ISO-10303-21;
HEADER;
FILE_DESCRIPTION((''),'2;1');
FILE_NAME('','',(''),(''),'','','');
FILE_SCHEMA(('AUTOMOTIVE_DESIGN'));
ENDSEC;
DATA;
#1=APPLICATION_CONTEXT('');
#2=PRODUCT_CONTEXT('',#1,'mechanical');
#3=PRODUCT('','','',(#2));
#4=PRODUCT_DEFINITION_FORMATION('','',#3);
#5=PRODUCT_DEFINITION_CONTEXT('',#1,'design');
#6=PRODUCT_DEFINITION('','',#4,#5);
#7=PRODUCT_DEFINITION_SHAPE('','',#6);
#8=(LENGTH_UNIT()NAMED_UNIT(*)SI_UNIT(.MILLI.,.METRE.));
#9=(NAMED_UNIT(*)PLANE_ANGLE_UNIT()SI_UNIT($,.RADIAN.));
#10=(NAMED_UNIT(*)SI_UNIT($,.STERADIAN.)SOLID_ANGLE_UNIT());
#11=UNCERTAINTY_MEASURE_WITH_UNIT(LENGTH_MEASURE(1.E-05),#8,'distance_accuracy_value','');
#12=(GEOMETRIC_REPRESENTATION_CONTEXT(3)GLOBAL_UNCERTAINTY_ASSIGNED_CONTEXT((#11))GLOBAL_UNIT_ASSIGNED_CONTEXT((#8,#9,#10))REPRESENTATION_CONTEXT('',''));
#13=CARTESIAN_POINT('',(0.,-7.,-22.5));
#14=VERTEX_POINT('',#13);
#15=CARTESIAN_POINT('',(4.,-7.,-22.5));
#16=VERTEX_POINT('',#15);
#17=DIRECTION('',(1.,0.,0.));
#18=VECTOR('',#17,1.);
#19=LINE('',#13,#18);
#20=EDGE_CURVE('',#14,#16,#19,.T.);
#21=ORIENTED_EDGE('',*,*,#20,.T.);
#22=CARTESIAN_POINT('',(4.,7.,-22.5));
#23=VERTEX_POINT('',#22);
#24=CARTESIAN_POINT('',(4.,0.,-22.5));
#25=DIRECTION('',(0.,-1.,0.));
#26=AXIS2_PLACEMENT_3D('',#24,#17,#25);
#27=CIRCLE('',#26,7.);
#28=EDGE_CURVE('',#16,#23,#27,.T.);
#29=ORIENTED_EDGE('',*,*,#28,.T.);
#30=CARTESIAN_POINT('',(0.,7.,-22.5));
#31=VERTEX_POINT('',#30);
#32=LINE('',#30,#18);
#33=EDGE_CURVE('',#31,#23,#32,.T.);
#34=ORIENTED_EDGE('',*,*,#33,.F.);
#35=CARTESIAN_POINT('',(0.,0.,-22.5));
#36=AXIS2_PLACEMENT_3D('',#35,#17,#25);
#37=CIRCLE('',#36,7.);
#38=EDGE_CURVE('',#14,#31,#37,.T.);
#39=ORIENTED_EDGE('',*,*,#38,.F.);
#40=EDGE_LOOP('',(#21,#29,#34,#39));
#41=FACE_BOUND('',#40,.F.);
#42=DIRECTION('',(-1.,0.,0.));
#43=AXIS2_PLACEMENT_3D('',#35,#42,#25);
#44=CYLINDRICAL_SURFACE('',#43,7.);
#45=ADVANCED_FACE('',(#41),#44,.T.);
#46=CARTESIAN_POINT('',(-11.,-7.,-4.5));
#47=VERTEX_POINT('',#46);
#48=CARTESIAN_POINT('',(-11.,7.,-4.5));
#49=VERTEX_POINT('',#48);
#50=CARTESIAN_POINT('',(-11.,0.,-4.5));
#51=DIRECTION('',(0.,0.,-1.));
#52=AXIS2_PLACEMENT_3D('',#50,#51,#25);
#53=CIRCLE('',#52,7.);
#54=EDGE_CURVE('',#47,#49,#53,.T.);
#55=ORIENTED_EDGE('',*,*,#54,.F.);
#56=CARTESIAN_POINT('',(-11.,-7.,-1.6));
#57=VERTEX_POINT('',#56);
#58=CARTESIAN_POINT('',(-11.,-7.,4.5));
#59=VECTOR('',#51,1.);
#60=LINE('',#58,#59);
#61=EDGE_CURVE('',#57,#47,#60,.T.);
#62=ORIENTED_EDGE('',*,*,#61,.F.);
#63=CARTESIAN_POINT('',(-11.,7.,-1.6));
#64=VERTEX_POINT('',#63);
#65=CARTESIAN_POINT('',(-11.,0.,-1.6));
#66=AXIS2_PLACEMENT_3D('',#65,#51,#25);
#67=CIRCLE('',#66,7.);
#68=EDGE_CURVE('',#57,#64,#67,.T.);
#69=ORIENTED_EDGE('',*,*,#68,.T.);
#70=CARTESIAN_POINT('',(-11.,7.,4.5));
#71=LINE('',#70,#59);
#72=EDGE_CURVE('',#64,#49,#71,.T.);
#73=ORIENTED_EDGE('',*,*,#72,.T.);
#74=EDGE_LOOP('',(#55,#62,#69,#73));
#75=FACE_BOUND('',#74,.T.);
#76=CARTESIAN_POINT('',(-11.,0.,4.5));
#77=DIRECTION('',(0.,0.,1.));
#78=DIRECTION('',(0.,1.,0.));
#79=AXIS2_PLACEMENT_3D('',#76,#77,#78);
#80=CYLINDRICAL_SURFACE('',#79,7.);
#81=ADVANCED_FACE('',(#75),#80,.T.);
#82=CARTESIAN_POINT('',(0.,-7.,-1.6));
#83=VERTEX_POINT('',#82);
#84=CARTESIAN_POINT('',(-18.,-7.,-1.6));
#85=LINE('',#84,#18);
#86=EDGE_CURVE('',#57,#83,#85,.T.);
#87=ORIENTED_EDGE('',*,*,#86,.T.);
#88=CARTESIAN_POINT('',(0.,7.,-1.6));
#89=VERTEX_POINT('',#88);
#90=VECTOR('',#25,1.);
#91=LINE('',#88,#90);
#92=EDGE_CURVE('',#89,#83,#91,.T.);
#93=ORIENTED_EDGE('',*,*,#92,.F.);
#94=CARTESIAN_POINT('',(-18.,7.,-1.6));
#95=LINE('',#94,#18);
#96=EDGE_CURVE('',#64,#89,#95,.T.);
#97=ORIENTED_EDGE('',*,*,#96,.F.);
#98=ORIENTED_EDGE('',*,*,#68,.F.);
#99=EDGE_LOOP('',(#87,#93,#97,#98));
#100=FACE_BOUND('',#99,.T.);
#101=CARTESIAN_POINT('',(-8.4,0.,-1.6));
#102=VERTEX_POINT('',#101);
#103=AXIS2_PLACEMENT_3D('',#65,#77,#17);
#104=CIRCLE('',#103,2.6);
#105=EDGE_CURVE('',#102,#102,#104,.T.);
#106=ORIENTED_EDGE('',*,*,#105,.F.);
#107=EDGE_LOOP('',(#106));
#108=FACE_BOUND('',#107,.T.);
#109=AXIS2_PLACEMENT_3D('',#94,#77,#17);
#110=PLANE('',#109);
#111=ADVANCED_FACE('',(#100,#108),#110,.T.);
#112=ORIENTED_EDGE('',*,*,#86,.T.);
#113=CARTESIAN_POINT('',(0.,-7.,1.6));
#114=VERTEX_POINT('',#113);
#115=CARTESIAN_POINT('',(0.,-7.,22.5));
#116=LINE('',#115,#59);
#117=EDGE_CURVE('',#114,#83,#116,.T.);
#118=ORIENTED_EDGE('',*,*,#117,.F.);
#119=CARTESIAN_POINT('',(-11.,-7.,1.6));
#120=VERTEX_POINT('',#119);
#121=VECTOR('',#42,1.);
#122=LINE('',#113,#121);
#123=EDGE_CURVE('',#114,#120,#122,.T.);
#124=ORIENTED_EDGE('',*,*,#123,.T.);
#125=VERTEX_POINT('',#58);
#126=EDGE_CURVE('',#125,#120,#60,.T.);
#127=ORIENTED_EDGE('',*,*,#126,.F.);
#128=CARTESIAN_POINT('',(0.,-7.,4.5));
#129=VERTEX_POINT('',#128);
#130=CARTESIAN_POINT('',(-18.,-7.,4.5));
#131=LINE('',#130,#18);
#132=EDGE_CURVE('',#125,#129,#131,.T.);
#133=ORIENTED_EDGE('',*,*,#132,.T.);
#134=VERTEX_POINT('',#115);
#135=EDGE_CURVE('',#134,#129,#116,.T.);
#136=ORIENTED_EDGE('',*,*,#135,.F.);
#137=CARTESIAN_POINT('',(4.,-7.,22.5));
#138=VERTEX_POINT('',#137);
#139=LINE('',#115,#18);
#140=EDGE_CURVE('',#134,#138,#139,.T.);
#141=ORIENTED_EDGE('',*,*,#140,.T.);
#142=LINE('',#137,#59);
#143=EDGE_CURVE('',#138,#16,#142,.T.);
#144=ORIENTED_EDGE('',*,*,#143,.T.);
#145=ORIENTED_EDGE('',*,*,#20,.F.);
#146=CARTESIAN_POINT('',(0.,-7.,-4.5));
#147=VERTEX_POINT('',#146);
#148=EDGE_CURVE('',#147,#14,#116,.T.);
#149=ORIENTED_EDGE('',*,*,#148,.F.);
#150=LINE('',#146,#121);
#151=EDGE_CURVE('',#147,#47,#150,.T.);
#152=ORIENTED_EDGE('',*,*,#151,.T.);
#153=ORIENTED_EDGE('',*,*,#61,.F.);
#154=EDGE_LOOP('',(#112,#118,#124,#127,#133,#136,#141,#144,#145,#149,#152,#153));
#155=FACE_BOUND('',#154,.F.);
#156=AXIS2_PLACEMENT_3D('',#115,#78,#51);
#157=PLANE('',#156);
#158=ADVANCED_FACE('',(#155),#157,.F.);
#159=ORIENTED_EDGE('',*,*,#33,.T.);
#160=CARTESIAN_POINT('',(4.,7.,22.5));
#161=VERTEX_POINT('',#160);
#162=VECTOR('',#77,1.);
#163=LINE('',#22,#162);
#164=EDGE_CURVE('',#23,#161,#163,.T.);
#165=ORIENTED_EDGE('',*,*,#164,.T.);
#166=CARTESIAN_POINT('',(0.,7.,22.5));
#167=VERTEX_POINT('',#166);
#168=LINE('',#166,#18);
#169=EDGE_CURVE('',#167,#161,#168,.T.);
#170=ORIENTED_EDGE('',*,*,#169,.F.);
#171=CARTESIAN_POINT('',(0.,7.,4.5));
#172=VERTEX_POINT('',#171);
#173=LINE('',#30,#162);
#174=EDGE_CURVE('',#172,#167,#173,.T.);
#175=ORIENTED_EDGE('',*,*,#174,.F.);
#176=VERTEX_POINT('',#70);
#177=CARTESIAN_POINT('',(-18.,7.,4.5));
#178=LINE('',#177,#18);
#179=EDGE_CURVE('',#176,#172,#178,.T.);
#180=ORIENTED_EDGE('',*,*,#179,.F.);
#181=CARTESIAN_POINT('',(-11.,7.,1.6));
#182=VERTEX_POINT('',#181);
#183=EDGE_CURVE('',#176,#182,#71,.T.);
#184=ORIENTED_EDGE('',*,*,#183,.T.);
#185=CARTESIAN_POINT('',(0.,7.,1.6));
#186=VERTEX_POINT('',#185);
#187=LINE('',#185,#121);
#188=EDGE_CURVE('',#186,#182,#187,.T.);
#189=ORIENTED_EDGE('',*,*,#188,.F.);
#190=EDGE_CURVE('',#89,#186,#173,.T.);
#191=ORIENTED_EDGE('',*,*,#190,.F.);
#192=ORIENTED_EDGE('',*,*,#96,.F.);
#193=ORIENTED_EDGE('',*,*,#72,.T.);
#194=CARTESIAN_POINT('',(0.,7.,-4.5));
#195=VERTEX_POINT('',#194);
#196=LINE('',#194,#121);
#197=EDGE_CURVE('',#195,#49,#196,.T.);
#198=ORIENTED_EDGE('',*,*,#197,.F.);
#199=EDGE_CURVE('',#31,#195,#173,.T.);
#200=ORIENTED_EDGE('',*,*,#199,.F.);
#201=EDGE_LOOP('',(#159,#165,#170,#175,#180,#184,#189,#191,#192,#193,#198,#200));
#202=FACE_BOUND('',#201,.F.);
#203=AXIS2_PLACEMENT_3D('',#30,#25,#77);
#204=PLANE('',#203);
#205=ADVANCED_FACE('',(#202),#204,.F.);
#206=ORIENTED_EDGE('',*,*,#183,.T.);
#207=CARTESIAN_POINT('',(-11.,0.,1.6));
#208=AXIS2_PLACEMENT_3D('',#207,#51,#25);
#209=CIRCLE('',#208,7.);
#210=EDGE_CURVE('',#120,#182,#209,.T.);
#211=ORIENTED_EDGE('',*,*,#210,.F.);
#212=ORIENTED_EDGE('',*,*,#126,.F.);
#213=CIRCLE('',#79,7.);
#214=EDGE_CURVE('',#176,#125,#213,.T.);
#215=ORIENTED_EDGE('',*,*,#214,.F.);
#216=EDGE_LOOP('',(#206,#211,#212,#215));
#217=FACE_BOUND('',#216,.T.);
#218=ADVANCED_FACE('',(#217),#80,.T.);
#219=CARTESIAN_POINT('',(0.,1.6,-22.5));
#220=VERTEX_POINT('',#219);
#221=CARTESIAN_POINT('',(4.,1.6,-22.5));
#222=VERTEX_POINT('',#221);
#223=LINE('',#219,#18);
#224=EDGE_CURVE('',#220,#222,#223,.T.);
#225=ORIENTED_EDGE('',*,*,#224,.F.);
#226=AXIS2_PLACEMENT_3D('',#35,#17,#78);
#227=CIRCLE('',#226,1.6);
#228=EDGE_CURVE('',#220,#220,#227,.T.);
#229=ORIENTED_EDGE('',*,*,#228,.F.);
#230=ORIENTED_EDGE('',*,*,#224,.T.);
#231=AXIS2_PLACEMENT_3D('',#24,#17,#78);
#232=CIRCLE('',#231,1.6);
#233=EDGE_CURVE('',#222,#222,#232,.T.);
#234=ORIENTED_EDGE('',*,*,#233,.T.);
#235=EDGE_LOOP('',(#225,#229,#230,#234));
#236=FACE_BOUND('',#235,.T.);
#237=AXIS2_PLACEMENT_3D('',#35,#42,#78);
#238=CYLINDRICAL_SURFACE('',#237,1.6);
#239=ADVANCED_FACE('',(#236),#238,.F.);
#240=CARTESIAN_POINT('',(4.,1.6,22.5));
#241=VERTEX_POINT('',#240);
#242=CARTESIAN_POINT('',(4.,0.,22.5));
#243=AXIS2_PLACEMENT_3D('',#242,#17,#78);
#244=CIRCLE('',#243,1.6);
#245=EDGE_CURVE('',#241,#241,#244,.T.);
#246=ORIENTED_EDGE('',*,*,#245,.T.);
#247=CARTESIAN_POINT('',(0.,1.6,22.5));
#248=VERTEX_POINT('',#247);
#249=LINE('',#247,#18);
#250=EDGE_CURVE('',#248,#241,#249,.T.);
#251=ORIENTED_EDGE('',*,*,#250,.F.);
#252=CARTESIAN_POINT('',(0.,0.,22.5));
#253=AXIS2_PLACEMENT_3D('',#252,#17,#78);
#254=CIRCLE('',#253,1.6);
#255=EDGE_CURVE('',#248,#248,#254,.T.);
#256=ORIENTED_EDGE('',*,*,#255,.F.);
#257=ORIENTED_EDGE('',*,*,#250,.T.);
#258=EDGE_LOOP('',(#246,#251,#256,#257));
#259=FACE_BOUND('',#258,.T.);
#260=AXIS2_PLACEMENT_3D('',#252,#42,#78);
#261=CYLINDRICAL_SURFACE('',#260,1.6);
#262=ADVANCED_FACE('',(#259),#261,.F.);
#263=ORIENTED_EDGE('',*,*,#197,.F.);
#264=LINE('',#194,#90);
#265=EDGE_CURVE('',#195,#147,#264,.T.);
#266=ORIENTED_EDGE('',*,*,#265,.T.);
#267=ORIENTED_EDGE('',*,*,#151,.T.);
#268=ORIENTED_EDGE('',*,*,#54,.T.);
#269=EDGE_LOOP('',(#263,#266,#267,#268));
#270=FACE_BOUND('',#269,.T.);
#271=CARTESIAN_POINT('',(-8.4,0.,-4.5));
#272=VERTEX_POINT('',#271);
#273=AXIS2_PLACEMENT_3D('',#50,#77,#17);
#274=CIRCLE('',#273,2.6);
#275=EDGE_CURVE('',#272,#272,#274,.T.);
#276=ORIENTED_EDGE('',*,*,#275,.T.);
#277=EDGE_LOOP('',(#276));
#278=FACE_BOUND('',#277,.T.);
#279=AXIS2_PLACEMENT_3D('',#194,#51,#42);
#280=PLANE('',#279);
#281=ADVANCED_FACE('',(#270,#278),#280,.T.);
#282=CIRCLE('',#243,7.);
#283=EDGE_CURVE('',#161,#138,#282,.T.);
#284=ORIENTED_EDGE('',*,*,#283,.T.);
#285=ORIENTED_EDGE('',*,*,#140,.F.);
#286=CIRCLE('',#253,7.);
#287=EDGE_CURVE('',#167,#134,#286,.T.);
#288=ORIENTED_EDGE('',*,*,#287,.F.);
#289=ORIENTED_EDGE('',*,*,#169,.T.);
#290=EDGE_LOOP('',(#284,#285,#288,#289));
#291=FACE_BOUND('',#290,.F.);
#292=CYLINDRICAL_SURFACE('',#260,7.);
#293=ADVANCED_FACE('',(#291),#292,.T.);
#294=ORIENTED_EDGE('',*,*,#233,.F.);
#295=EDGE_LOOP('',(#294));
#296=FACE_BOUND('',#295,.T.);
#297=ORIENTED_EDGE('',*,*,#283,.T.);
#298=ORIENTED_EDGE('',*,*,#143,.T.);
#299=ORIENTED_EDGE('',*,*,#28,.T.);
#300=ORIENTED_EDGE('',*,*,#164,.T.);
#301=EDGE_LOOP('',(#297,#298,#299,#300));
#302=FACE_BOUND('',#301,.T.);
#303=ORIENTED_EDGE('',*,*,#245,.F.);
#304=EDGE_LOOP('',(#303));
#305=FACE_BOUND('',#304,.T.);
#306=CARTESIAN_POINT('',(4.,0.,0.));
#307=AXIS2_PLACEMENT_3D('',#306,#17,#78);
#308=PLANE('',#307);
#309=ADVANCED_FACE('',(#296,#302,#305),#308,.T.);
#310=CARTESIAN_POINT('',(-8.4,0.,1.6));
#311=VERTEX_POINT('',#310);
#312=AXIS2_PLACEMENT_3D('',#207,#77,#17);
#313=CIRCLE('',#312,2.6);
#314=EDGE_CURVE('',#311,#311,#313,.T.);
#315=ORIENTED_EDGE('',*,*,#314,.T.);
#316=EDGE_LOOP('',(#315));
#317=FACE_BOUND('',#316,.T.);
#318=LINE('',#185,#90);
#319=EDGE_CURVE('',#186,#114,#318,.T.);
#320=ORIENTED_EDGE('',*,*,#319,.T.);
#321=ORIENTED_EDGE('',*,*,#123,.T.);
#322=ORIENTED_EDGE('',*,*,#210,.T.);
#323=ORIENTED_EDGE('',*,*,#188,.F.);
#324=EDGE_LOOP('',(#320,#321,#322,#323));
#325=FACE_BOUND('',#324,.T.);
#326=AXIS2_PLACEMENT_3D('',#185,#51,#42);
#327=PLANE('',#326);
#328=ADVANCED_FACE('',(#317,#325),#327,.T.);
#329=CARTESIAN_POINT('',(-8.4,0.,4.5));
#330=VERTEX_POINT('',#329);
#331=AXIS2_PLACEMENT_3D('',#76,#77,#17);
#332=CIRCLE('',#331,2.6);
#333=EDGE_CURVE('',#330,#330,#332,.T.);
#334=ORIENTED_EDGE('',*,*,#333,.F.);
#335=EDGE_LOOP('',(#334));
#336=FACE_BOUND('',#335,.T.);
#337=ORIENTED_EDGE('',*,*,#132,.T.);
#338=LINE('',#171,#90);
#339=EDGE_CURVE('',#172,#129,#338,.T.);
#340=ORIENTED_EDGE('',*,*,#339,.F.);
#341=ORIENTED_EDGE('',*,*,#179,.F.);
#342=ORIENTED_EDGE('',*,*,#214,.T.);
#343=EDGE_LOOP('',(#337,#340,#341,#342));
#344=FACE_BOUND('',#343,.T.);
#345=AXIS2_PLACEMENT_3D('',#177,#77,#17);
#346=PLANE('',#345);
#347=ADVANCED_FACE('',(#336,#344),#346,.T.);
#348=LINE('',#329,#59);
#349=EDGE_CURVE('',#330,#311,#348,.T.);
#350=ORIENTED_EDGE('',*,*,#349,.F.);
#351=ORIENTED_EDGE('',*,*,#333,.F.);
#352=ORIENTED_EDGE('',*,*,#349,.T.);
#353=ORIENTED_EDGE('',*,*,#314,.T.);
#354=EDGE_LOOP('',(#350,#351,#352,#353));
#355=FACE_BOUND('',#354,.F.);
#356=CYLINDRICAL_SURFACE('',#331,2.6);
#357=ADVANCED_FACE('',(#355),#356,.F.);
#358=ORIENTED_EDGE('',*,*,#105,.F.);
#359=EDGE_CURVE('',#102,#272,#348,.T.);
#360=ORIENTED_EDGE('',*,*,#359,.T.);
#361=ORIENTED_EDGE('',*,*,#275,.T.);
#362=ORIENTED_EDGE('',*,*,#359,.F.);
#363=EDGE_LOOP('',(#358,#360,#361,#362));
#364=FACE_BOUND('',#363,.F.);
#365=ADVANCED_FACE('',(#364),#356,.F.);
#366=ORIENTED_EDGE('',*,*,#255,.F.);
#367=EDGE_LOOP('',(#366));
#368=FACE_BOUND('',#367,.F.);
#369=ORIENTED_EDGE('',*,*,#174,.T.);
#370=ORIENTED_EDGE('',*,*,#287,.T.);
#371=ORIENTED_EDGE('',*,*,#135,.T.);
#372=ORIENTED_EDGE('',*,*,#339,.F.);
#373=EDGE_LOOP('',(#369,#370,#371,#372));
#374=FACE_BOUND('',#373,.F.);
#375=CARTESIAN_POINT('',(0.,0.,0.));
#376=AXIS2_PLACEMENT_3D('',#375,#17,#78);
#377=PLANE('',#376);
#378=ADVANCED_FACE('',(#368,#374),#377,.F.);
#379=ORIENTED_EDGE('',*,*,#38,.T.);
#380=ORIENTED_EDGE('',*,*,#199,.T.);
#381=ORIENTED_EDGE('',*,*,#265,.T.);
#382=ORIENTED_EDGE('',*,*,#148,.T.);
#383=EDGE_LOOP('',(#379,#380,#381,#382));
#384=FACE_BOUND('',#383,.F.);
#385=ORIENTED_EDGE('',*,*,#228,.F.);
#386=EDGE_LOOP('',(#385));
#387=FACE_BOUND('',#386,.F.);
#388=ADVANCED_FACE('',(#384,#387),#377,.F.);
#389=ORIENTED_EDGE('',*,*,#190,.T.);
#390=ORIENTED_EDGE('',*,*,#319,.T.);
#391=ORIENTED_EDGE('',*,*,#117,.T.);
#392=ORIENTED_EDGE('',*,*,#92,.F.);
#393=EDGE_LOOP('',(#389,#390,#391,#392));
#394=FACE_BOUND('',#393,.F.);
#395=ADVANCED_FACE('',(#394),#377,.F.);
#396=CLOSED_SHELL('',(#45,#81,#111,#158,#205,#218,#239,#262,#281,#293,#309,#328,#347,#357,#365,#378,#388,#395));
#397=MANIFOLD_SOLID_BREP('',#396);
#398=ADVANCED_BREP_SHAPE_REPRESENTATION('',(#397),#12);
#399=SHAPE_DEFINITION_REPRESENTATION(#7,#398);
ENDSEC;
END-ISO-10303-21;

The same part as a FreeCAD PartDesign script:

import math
import FreeCAD as App
import Part
import Sketcher
from FreeCAD import Vector
Q = App.Units.Quantity


def add_polygon(sketch, points):
    """Adds a closed chain of lines whose ends are joined by coincident constraints."""
    first, n = sketch.GeometryCount, len(points)
    for a, b in zip(points, points[1:] + points[:1]):
        sketch.addGeometry(Part.LineSegment(App.Vector(*a, 0), App.Vector(*b, 0)), False)
    for i in range(n):
        sketch.addConstraint(Sketcher.Constraint("Coincident", first + i, 2, first + (i + 1) % n, 1))

doc = App.newDocument("Part")
params = doc.addObject("Spreadsheet::Sheet", "Params")
for row, (alias, value) in enumerate([
    ("sketch1_radius", "7 mm"),
    ("sketch1_diameter", "3.2 mm"),
    ("sketch1_height", "45 mm"),
    ("pad1_length", "4 mm"),
    ("sketch2_width", "18 mm"),
    ("sketch2_height", "2.9 mm"),
    ("pad2_length", "14 mm"),
    ("sketch3_radius", "7 mm"),
    ("sketch3_diameter", "5.2 mm"),
    ("sketch3_height", "5 mm"),
    ("sketch3_width", "11 mm"),
    ("sketch3_width2", "23 mm"),
], start=1):
    params.set(f"A{row}", alias)
    params.set(f"B{row}", "=" + value)
    params.setAlias(f"B{row}", alias)

body = doc.addObject("PartDesign::Body", "Body")

sketch1 = body.newObject("Sketcher::SketchObject", "Sketch")
sketch1.AttachmentSupport = (doc.getObject("YZ_Plane"), [""])
sketch1.MapMode = "FlatFace"
sketch1.addGeometry([
    Part.ArcOfCircle(Part.Circle(Vector(0, 22.5, 0), Vector(0, 0, 1), 7), math.radians(0), math.radians(180)),
    Part.LineSegment(Vector(-7, 22.5, 0), Vector(-7, -22.5, 0)),
    Part.ArcOfCircle(Part.Circle(Vector(0, -22.5, 0), Vector(0, 0, 1), 7), math.radians(180), math.radians(360)),
    Part.LineSegment(Vector(7, -22.5, 0), Vector(7, 22.5, 0)),
    Part.Circle(Vector(0, -22.5, 0), Vector(0, 0, 1), 1.6),
    Part.Circle(Vector(0, 22.5, 0), Vector(0, 0, 1), 1.6),
], False)
sketch1.addConstraint([
    Sketcher.Constraint("Tangent", 0, 2, 1, 1),
    Sketcher.Constraint("Tangent", 1, 2, 2, 1),
    Sketcher.Constraint("Tangent", 2, 2, 3, 1),
    Sketcher.Constraint("Tangent", 3, 2, 0, 1),
    Sketcher.Constraint("Vertical", 1),
    Sketcher.Constraint("Vertical", 3),
    Sketcher.Constraint("Coincident", 4, 3, 2, 3),
    Sketcher.Constraint("Coincident", 5, 3, 0, 3),
    Sketcher.Constraint("Equal", 4, 5),
    Sketcher.Constraint("Symmetric", 0, 3, 2, 3, -1, 1),
    Sketcher.Constraint("Radius", 0, Q("7 mm")),
    Sketcher.Constraint("Diameter", 4, Q("3.2 mm")),
    Sketcher.Constraint("DistanceY", 1, 2, 1, 1, Q("45 mm")),
])
sketch1.setExpression("Constraints[10]", "Params.sketch1_radius")
sketch1.setExpression("Constraints[11]", "Params.sketch1_diameter")
sketch1.setExpression("Constraints[12]", "Params.sketch1_height")
pad1 = body.newObject("PartDesign::Pad", "Pad")
pad1.Profile = sketch1
pad1.setExpression("Length", "Params.pad1_length")

sketch2 = body.newObject("Sketcher::SketchObject", "Sketch001")
sketch2.AttachmentSupport = (doc.getObject("XZ_Plane"), [""])
sketch2.MapMode = "FlatFace"
sketch2.AttachmentOffset = App.Placement(Vector(0, 0, -7), App.Rotation())
add_polygon(sketch2, [(0, 4.5), (0, 1.6), (-18, 1.6), (-18, 4.5)])
add_polygon(sketch2, [(0, -1.6), (0, -4.5), (-18, -4.5), (-18, -1.6)])
sketch2.addConstraint([
    Sketcher.Constraint("Vertical", 0),
    Sketcher.Constraint("Horizontal", 1),
    Sketcher.Constraint("Vertical", 2),
    Sketcher.Constraint("Horizontal", 3),
    Sketcher.Constraint("Vertical", 4),
    Sketcher.Constraint("Horizontal", 5),
    Sketcher.Constraint("Vertical", 6),
    Sketcher.Constraint("Horizontal", 7),
    Sketcher.Constraint("Symmetric", 3, 2, 4, 2, -1, 1),
    Sketcher.Constraint("Symmetric", 1, 2, 6, 2, -1),
    Sketcher.Constraint("PointOnObject", 0, 2, -2),
    Sketcher.Constraint("DistanceX", 1, 2, 1, 1, Q("18 mm")),
    Sketcher.Constraint("DistanceY", 0, 2, 0, 1, Q("2.9 mm")),
    Sketcher.Constraint("DistanceY", 6, 2, 1, 2, Q("3.2 mm")),
])
sketch2.setExpression("Constraints[19]", "Params.sketch2_width")
sketch2.setExpression("Constraints[20]", "Params.sketch2_height")
pad2 = body.newObject("PartDesign::Pad", "Pad001")
pad2.Profile = sketch2
pad2.setExpression("Length", "Params.pad2_length")

sketch3 = body.newObject("Sketcher::SketchObject", "Sketch002")
sketch3.AttachmentSupport = (doc.getObject("XY_Plane"), [""])
sketch3.MapMode = "FlatFace"
sketch3.AttachmentOffset = App.Placement(Vector(0, 0, 4.5), App.Rotation())
sketch3.addGeometry([
    Part.ArcOfCircle(Part.Circle(Vector(-11, 0, 0), Vector(0, 0, 1), 7), math.radians(90), math.radians(270)),
    Part.LineSegment(Vector(-11, 7, 0), Vector(0, 7, 0)),
    Part.LineSegment(Vector(0, 7, 0), Vector(0, 12, 0)),
    Part.LineSegment(Vector(0, 12, 0), Vector(-23, 12, 0)),
    Part.LineSegment(Vector(-23, 12, 0), Vector(-23, -12, 0)),
    Part.LineSegment(Vector(-23, -12, 0), Vector(0, -12, 0)),
    Part.LineSegment(Vector(0, -12, 0), Vector(0, -7, 0)),
    Part.LineSegment(Vector(0, -7, 0), Vector(-11, -7, 0)),
    Part.Circle(Vector(-11, 0, 0), Vector(0, 0, 1), 2.6),
], False)
sketch3.addConstraint([
    Sketcher.Constraint("Tangent", 0, 1, 1, 1),
    Sketcher.Constraint("Coincident", 1, 2, 2, 1),
    Sketcher.Constraint("Coincident", 2, 2, 3, 1),
    Sketcher.Constraint("Coincident", 3, 2, 4, 1),
    Sketcher.Constraint("Coincident", 4, 2, 5, 1),
    Sketcher.Constraint("Coincident", 5, 2, 6, 1),
    Sketcher.Constraint("Coincident", 6, 2, 7, 1),
    Sketcher.Constraint("Tangent", 7, 2, 0, 2),
    Sketcher.Constraint("Horizontal", 1),
    Sketcher.Constraint("Vertical", 2),
    Sketcher.Constraint("Horizontal", 3),
    Sketcher.Constraint("Vertical", 4),
    Sketcher.Constraint("Horizontal", 5),
    Sketcher.Constraint("Vertical", 6),
    Sketcher.Constraint("Horizontal", 7),
    Sketcher.Constraint("Coincident", 8, 3, 0, 3),
    Sketcher.Constraint("Symmetric", 2, 2, 5, 2, -1, 1),
    Sketcher.Constraint("Symmetric", 1, 2, 6, 2, -1),
    Sketcher.Constraint("Radius", 0, Q("7 mm")),
    Sketcher.Constraint("Diameter", 8, Q("5.2 mm")),
    Sketcher.Constraint("DistanceY", 2, 1, 2, 2, Q("5 mm")),
    Sketcher.Constraint("DistanceX", 1, 1, 1, 2, Q("11 mm")),
    Sketcher.Constraint("DistanceX", 3, 2, 3, 1, Q("23 mm")),
])
sketch3.setExpression("Constraints[18]", "Params.sketch3_radius")
sketch3.setExpression("Constraints[19]", "Params.sketch3_diameter")
sketch3.setExpression("Constraints[20]", "Params.sketch3_height")
sketch3.setExpression("Constraints[21]", "Params.sketch3_width")
sketch3.setExpression("Constraints[22]", "Params.sketch3_width2")
pocket1 = body.newObject("PartDesign::Pocket", "Pocket")
pocket1.Profile = sketch3
pocket1.Type = "ThroughAll"

doc.recompute()
